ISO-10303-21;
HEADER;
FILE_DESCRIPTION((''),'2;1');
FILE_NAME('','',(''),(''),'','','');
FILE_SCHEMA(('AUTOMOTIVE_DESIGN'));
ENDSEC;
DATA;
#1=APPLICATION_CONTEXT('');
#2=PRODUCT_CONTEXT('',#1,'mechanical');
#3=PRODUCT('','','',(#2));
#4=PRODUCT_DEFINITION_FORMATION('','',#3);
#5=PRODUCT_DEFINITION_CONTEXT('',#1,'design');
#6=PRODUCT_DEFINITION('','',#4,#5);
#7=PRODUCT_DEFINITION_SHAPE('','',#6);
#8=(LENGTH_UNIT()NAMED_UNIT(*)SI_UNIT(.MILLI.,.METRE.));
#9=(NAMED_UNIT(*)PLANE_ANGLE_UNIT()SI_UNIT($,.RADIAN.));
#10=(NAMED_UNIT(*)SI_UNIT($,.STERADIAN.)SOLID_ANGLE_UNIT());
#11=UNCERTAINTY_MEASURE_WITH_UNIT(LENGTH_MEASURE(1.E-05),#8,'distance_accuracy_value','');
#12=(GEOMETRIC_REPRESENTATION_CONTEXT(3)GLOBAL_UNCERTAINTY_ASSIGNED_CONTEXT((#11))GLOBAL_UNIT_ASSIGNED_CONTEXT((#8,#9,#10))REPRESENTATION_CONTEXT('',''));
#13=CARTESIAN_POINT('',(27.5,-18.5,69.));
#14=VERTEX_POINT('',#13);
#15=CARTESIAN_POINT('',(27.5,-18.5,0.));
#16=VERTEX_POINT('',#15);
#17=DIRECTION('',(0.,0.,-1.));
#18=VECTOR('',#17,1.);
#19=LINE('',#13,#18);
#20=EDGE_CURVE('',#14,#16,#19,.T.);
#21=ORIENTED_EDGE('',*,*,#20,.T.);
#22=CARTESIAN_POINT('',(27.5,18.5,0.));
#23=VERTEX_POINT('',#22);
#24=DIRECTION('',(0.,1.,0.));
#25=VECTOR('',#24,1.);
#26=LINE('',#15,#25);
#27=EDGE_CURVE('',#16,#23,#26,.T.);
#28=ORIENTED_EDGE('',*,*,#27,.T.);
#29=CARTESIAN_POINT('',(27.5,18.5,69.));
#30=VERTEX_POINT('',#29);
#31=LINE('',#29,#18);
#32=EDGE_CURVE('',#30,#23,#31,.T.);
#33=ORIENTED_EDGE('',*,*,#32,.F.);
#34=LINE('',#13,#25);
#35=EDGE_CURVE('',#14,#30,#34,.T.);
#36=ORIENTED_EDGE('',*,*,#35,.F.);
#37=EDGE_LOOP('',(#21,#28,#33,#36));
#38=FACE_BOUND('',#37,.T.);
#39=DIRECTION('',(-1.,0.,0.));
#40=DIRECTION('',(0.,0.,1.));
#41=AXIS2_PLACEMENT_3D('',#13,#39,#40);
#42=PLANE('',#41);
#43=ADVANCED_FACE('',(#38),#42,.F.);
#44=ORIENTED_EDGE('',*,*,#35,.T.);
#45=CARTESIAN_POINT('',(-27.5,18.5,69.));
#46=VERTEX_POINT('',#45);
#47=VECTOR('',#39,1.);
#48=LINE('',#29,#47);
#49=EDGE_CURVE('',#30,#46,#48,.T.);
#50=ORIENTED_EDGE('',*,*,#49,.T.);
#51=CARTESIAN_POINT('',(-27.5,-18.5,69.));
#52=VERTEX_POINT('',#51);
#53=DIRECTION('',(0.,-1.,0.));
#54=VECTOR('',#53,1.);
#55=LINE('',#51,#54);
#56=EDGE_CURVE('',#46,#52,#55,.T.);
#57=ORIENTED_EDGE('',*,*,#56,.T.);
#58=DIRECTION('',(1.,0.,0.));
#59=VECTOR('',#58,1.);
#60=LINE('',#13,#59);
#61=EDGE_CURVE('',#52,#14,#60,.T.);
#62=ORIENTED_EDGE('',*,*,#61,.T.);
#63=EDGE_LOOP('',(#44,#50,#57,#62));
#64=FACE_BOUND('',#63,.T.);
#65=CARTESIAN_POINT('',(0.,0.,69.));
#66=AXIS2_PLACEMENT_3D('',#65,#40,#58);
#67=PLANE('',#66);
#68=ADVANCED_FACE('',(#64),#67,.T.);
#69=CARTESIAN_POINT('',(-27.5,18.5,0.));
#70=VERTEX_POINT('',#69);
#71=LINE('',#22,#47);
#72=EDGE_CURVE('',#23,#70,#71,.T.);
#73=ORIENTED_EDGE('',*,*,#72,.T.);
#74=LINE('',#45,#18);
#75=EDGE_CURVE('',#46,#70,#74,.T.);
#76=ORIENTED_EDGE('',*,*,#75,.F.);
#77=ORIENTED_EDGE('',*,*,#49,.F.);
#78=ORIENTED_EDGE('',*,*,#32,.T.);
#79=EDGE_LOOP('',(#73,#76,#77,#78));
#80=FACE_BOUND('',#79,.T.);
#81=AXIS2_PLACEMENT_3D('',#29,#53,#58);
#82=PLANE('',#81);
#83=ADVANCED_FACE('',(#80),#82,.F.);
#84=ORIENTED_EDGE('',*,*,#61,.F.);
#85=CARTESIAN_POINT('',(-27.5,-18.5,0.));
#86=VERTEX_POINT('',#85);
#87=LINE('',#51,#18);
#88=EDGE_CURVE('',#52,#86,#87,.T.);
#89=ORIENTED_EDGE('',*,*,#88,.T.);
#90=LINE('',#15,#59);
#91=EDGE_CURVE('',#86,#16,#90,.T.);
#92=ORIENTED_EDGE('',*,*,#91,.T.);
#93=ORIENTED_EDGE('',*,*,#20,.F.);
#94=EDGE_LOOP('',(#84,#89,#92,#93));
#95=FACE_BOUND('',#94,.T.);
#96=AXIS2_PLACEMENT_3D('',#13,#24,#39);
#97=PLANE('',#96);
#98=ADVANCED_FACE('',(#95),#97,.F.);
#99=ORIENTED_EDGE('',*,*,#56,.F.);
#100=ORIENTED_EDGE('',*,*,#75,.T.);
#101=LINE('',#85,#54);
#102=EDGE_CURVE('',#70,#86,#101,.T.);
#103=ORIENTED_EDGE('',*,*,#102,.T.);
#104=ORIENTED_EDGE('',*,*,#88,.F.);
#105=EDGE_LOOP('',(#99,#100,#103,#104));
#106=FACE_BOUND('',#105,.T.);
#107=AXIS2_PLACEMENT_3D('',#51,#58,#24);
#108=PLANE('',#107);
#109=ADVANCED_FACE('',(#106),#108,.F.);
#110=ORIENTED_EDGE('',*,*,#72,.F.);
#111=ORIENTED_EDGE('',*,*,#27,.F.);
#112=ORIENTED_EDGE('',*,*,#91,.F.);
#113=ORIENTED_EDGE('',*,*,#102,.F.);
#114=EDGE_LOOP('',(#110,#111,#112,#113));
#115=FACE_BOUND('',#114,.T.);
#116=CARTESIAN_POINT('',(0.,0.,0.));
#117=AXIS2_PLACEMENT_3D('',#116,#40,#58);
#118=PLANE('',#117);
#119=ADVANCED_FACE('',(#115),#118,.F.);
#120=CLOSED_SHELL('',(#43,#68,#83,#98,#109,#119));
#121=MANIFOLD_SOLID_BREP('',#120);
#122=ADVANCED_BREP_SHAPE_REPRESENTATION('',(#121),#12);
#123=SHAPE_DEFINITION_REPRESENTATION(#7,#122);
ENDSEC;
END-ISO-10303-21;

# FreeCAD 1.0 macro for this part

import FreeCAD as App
import Part
import Sketcher
from FreeCAD import Vector

doc = App.newDocument("Part")
body = doc.addObject("PartDesign::Body", "Body")

sketch1 = doc.addObject("Sketcher::SketchObject", "Sketch")
body.addObject(sketch1)
sketch1.AttachmentSupport = (doc.XY_Plane, [""])
sketch1.MapMode = "FlatFace"
sketch1.addGeometry([
    Part.LineSegment(Vector(-28, 18, 0), Vector(-28, -18, 0)),
    Part.LineSegment(Vector(-28, -18, 0), Vector(28, -18, 0)),
    Part.LineSegment(Vector(28, -18, 0), Vector(28, 18, 0)),
    Part.LineSegment(Vector(28, 18, 0), Vector(-28, 18, 0)),
], False)
sketch1.addConstraint([
    Sketcher.Constraint("Coincident", 0, 2, 1, 1),
    Sketcher.Constraint("Coincident", 1, 2, 2, 1),
    Sketcher.Constraint("Coincident", 2, 2, 3, 1),
    Sketcher.Constraint("Coincident", 3, 2, 0, 1),
    Sketcher.Constraint("Vertical", 0),
    Sketcher.Constraint("Horizontal", 1),
    Sketcher.Constraint("Vertical", 2),
    Sketcher.Constraint("Horizontal", 3),
    Sketcher.Constraint("Symmetric", 0, 2, 2, 2, -1, 1),
    Sketcher.Constraint("DistanceX", 1, 1, 1, 2, 55.0),
    Sketcher.Constraint("DistanceY", 0, 2, 0, 1, 37.0),
])
pad1 = doc.addObject("PartDesign::Pad", "Pad")
body.addObject(pad1)
pad1.Profile = sketch1
pad1.Length = 69

doc.recompute()
